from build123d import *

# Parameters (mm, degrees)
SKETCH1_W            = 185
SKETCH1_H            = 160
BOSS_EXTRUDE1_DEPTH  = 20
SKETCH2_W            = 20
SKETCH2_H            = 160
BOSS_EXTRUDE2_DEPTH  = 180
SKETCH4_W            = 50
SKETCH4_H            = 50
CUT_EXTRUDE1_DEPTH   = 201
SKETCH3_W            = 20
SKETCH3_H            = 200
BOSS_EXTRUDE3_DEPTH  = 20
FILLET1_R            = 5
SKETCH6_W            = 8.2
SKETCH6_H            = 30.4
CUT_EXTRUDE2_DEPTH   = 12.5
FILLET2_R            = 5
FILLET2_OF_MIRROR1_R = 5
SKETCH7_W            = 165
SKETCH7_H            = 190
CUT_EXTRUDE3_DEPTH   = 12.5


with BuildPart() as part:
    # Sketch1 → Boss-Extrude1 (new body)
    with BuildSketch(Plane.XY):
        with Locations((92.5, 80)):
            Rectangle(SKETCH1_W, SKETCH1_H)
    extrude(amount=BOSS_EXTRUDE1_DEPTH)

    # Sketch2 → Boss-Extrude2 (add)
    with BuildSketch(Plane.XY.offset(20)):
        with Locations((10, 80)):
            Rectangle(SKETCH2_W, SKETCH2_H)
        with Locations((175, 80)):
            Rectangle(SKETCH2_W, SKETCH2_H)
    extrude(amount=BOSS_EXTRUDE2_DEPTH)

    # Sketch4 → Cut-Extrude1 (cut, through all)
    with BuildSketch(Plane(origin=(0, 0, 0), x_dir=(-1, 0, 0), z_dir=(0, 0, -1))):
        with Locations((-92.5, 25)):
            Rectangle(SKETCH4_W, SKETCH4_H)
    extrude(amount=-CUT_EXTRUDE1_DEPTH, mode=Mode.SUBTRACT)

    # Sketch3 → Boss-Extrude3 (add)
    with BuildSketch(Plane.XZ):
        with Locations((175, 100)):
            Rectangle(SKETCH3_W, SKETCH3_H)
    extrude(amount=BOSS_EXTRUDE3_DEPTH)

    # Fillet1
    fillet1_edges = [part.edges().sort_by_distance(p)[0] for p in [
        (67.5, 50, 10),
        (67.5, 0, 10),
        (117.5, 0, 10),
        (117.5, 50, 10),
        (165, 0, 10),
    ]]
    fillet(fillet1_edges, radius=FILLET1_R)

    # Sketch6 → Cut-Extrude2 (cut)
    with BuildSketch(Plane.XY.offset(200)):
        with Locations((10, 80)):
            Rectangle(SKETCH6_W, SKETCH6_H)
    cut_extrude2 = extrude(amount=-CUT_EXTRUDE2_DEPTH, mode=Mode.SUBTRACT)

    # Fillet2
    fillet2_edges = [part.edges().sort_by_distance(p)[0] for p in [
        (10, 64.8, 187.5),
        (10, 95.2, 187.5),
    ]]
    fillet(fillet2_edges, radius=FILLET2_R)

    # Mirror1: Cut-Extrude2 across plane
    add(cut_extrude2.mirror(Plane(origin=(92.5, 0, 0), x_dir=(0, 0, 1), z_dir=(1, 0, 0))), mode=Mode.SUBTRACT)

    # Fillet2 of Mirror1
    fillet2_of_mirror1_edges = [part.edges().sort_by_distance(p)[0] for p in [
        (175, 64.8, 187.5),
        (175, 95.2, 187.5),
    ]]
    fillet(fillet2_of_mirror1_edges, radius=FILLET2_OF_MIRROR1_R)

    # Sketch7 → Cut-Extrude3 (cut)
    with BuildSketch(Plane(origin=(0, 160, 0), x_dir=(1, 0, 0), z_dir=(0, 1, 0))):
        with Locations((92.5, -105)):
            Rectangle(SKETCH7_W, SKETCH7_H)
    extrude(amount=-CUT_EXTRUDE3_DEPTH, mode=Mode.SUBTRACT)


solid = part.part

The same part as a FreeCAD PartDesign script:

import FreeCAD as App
import Part
import Sketcher
Q = App.Units.Quantity


def edges_at(feature, points):
    """Names of the edges that pass closest to the given points."""
    edges = feature.Shape.Edges
    near = lambda p: min(range(len(edges)), key=lambda i: edges[i].distToShape(Part.Vertex(*p))[0])
    return sorted({f"Edge{near(p) + 1}" for p in points})

doc = App.newDocument("Part")
body = doc.addObject("PartDesign::Body", "Body")

# Sketch on XY plane
sketch1 = body.newObject("Sketcher::SketchObject", "Sketch")
sketch1.AttachmentSupport = (doc.getObject("XY_Plane"), [""])
sketch1.MapMode = "FlatFace"
sketch1.addGeometry([
    Part.LineSegment(App.Vector(0, 160, 0), App.Vector(0, 0, 0)),
    Part.LineSegment(App.Vector(0, 0, 0), App.Vector(185, 0, 0)),
    Part.LineSegment(App.Vector(185, 0, 0), App.Vector(185, 160, 0)),
    Part.LineSegment(App.Vector(185, 160, 0), App.Vector(0, 160, 0)),
], False)
sketch1.addConstraint([
    Sketcher.Constraint("Coincident", 0, 2, 1, 1),
    Sketcher.Constraint("Coincident", 1, 2, 2, 1),
    Sketcher.Constraint("Coincident", 2, 2, 3, 1),
    Sketcher.Constraint("Coincident", 3, 2, 0, 1),
    Sketcher.Constraint("Vertical", 0),
    Sketcher.Constraint("Horizontal", 1),
    Sketcher.Constraint("Vertical", 2),
    Sketcher.Constraint("Horizontal", 3),
    Sketcher.Constraint("Coincident", 0, 2, -1, 1),
    Sketcher.Constraint("DistanceX", 1, 1, 1, 2, Q("185 mm")),
    Sketcher.Constraint("DistanceY", 0, 2, 0, 1, Q("160 mm")),
])
pad1 = body.newObject("PartDesign::Pad", "Pad")
pad1.Profile = sketch1
pad1.Length = 20

# Sketch on XY plane
sketch2 = body.newObject("Sketcher::SketchObject", "Sketch001")
sketch2.AttachmentSupport = (doc.getObject("XY_Plane"), [""])
sketch2.MapMode = "FlatFace"
sketch2.AttachmentOffset = App.Placement(App.Vector(0, 0, 20), App.Rotation())
sketch2.addGeometry([
    Part.LineSegment(App.Vector(0, 160, 0), App.Vector(0, 0, 0)),  # 0
    Part.LineSegment(App.Vector(0, 0, 0), App.Vector(20, 0, 0)),  # 1
    Part.LineSegment(App.Vector(20, 0, 0), App.Vector(20, 160, 0)),  # 2
    Part.LineSegment(App.Vector(20, 160, 0), App.Vector(0, 160, 0)),  # 3
    Part.LineSegment(App.Vector(165, 160, 0), App.Vector(165, 0, 0)),  # 4
    Part.LineSegment(App.Vector(165, 0, 0), App.Vector(185, 0, 0)),  # 5
    Part.LineSegment(App.Vector(185, 0, 0), App.Vector(185, 160, 0)),  # 6
    Part.LineSegment(App.Vector(185, 160, 0), App.Vector(165, 160, 0)),  # 7
], False)
sketch2.addConstraint([
    Sketcher.Constraint("Coincident", 0, 2, 1, 1),
    Sketcher.Constraint("Coincident", 1, 2, 2, 1),
    Sketcher.Constraint("Coincident", 2, 2, 3, 1),
    Sketcher.Constraint("Coincident", 3, 2, 0, 1),
    Sketcher.Constraint("Coincident", 4, 2, 5, 1),
    Sketcher.Constraint("Coincident", 5, 2, 6, 1),
    Sketcher.Constraint("Coincident", 6, 2, 7, 1),
    Sketcher.Constraint("Coincident", 7, 2, 4, 1),
    Sketcher.Constraint("Vertical", 0),
    Sketcher.Constraint("Horizontal", 1),
    Sketcher.Constraint("Vertical", 2),
    Sketcher.Constraint("Horizontal", 3),
    Sketcher.Constraint("Vertical", 4),
    Sketcher.Constraint("Horizontal", 5),
    Sketcher.Constraint("Vertical", 6),
    Sketcher.Constraint("Horizontal", 7),
    Sketcher.Constraint("Coincident", 0, 2, -1, 1),
    Sketcher.Constraint("PointOnObject", 4, 2, -1),
    Sketcher.Constraint("Horizontal", 3, 2, 6, 2),
    Sketcher.Constraint("Equal", 3, 5),
    Sketcher.Constraint("DistanceX", 1, 1, 1, 2, Q("20 mm")),
    Sketcher.Constraint("DistanceY", 0, 2, 0, 1, Q("160 mm")),
    Sketcher.Constraint("DistanceX", -1, 1, 4, 2, Q("165 mm")),
])
pad2 = body.newObject("PartDesign::Pad", "Pad001")
pad2.Profile = sketch2
pad2.Length = 180

# Sketch on XY plane
sketch3 = body.newObject("Sketcher::SketchObject", "Sketch002")
sketch3.AttachmentSupport = (doc.getObject("XY_Plane"), [""])
sketch3.MapMode = "FlatFace"
sketch3.addGeometry([
    Part.LineSegment(App.Vector(118, 50, 0), App.Vector(118, 0, 0)),
    Part.LineSegment(App.Vector(118, 0, 0), App.Vector(68, 0, 0)),
    Part.LineSegment(App.Vector(68, 0, 0), App.Vector(68, 50, 0)),
    Part.LineSegment(App.Vector(68, 50, 0), App.Vector(118, 50, 0)),
], False)
sketch3.addConstraint([
    Sketcher.Constraint("Coincident", 0, 2, 1, 1),
    Sketcher.Constraint("Coincident", 1, 2, 2, 1),
    Sketcher.Constraint("Coincident", 2, 2, 3, 1),
    Sketcher.Constraint("Coincident", 3, 2, 0, 1),
    Sketcher.Constraint("Vertical", 0),
    Sketcher.Constraint("Horizontal", 1),
    Sketcher.Constraint("Vertical", 2),
    Sketcher.Constraint("Horizontal", 3),
    Sketcher.Constraint("PointOnObject", 0, 2, -1),
    Sketcher.Constraint("Equal", 3, 0),
    Sketcher.Constraint("DistanceX", 1, 2, 1, 1, Q("50 mm")),
    Sketcher.Constraint("DistanceX", -1, 1, 0, 2, Q("117.5 mm")),
])
pocket1 = body.newObject("PartDesign::Pocket", "Pocket")
pocket1.Profile = sketch3
pocket1.Type = "ThroughAll"
pocket1.Reversed = True

# Sketch on XZ plane
sketch4 = body.newObject("Sketcher::SketchObject", "Sketch003")
sketch4.AttachmentSupport = (doc.getObject("XZ_Plane"), [""])
sketch4.MapMode = "FlatFace"
sketch4.addGeometry([
    Part.LineSegment(App.Vector(165, 200, 0), App.Vector(165, 0, 0)),
    Part.LineSegment(App.Vector(165, 0, 0), App.Vector(185, 0, 0)),
    Part.LineSegment(App.Vector(185, 0, 0), App.Vector(185, 200, 0)),
    Part.LineSegment(App.Vector(185, 200, 0), App.Vector(165, 200, 0)),
], False)
sketch4.addConstraint([
    Sketcher.Constraint("Coincident", 0, 2, 1, 1),
    Sketcher.Constraint("Coincident", 1, 2, 2, 1),
    Sketcher.Constraint("Coincident", 2, 2, 3, 1),
    Sketcher.Constraint("Coincident", 3, 2, 0, 1),
    Sketcher.Constraint("Vertical", 0),
    Sketcher.Constraint("Horizontal", 1),
    Sketcher.Constraint("Vertical", 2),
    Sketcher.Constraint("Horizontal", 3),
    Sketcher.Constraint("PointOnObject", 0, 2, -1),
    Sketcher.Constraint("DistanceX", 1, 1, 1, 2, Q("20 mm")),
    Sketcher.Constraint("DistanceY", 0, 2, 0, 1, Q("200 mm")),
    Sketcher.Constraint("DistanceX", -1, 1, 0, 2, Q("165 mm")),
])
pad3 = body.newObject("PartDesign::Pad", "Pad002")
pad3.Profile = sketch4
pad3.Length = 20
doc.recompute()

fillet = body.newObject("PartDesign::Fillet", "Fillet")
fillet.Base = (pad3, edges_at(pad3, [
    (67.5, 50, 10),
    (67.5, 0, 10),
    (117.5, 0, 10),
    (117.5, 50, 10),
    (165, 0, 10),
]))
fillet.Radius = 5

# Sketch on XY plane
sketch5 = body.newObject("Sketcher::SketchObject", "Sketch004")
sketch5.AttachmentSupport = (doc.getObject("XY_Plane"), [""])
sketch5.MapMode = "FlatFace"
sketch5.AttachmentOffset = App.Placement(App.Vector(0, 0, 200), App.Rotation())
sketch5.addGeometry([
    Part.LineSegment(App.Vector(6, 95, 0), App.Vector(6, 65, 0)),
    Part.LineSegment(App.Vector(6, 65, 0), App.Vector(14, 65, 0)),
    Part.LineSegment(App.Vector(14, 65, 0), App.Vector(14, 95, 0)),
    Part.LineSegment(App.Vector(14, 95, 0), App.Vector(6, 95, 0)),
], False)
sketch5.addConstraint([
    Sketcher.Constraint("Coincident", 0, 2, 1, 1),
    Sketcher.Constraint("Coincident", 1, 2, 2, 1),
    Sketcher.Constraint("Coincident", 2, 2, 3, 1),
    Sketcher.Constraint("Coincident", 3, 2, 0, 1),
    Sketcher.Constraint("Vertical", 0),
    Sketcher.Constraint("Horizontal", 1),
    Sketcher.Constraint("Vertical", 2),
    Sketcher.Constraint("Horizontal", 3),
    Sketcher.Constraint("DistanceX", 1, 1, 1, 2, Q("8.2 mm")),
    Sketcher.Constraint("DistanceY", 0, 2, 0, 1, Q("30.4 mm")),
    Sketcher.Constraint("DistanceX", -1, 1, 0, 2, Q("5.9 mm")),
    Sketcher.Constraint("DistanceY", -1, 1, 0, 2, Q("64.8 mm")),
])
pocket2 = body.newObject("PartDesign::Pocket", "Pocket001")
pocket2.Profile = sketch5
pocket2.Length = 12.5
doc.recompute()

fillet2 = body.newObject("PartDesign::Fillet", "Fillet001")
fillet2.Base = (pocket2, edges_at(pocket2, [(10, 64.8, 187.5), (10, 95.2, 187.5)]))
fillet2.Radius = 5
doc.recompute()

datumplane = body.newObject("PartDesign::Plane", "DatumPlane")
datumplane.AttachmentSupport = (doc.getObject("YZ_Plane"), [""])
datumplane.MapMode = "FlatFace"
datumplane.AttachmentOffset = App.Placement(App.Vector(0, 0, 92.5), App.Rotation())
mirrored = body.newObject("PartDesign::Mirrored", "Mirrored")
mirrored.Originals = [pocket2]
mirrored.MirrorPlane = (datumplane, [""])
body.Tip = mirrored
doc.recompute()

fillet3 = body.newObject("PartDesign::Fillet", "Fillet002")
fillet3.Base = (mirrored, edges_at(mirrored, [(175, 64.8, 187.5), (175, 95.2, 187.5)]))
fillet3.Radius = 5

# Sketch on XZ plane
sketch6 = body.newObject("Sketcher::SketchObject", "Sketch005")
sketch6.AttachmentSupport = (doc.getObject("XZ_Plane"), [""])
sketch6.MapMode = "FlatFace"
sketch6.AttachmentOffset = App.Placement(App.Vector(0, 0, -160), App.Rotation())
sketch6.addGeometry([
    Part.LineSegment(App.Vector(10, 10, 0), App.Vector(10, 200, 0)),
    Part.LineSegment(App.Vector(10, 200, 0), App.Vector(175, 200, 0)),
    Part.LineSegment(App.Vector(175, 200, 0), App.Vector(175, 10, 0)),
    Part.LineSegment(App.Vector(175, 10, 0), App.Vector(10, 10, 0)),
], False)
sketch6.addConstraint([
    Sketcher.Constraint("Coincident", 0, 2, 1, 1),
    Sketcher.Constraint("Coincident", 1, 2, 2, 1),
    Sketcher.Constraint("Coincident", 2, 2, 3, 1),
    Sketcher.Constraint("Coincident", 3, 2, 0, 1),
    Sketcher.Constraint("Vertical", 0),
    Sketcher.Constraint("Horizontal", 1),
    Sketcher.Constraint("Vertical", 2),
    Sketcher.Constraint("Horizontal", 3),
    Sketcher.Constraint("DistanceX", 1, 1, 1, 2, Q("165 mm")),
    Sketcher.Constraint("DistanceY", 0, 1, 0, 2, Q("190 mm")),
    Sketcher.Constraint("DistanceX", -1, 1, 0, 2, Q("10 mm")),
    Sketcher.Constraint("DistanceY", -1, 1, 0, 2, Q("200 mm")),
])
pocket3 = body.newObject("PartDesign::Pocket", "Pocket002")
pocket3.Profile = sketch6
pocket3.Length = 12.5
pocket3.Reversed = True

doc.recompute()
